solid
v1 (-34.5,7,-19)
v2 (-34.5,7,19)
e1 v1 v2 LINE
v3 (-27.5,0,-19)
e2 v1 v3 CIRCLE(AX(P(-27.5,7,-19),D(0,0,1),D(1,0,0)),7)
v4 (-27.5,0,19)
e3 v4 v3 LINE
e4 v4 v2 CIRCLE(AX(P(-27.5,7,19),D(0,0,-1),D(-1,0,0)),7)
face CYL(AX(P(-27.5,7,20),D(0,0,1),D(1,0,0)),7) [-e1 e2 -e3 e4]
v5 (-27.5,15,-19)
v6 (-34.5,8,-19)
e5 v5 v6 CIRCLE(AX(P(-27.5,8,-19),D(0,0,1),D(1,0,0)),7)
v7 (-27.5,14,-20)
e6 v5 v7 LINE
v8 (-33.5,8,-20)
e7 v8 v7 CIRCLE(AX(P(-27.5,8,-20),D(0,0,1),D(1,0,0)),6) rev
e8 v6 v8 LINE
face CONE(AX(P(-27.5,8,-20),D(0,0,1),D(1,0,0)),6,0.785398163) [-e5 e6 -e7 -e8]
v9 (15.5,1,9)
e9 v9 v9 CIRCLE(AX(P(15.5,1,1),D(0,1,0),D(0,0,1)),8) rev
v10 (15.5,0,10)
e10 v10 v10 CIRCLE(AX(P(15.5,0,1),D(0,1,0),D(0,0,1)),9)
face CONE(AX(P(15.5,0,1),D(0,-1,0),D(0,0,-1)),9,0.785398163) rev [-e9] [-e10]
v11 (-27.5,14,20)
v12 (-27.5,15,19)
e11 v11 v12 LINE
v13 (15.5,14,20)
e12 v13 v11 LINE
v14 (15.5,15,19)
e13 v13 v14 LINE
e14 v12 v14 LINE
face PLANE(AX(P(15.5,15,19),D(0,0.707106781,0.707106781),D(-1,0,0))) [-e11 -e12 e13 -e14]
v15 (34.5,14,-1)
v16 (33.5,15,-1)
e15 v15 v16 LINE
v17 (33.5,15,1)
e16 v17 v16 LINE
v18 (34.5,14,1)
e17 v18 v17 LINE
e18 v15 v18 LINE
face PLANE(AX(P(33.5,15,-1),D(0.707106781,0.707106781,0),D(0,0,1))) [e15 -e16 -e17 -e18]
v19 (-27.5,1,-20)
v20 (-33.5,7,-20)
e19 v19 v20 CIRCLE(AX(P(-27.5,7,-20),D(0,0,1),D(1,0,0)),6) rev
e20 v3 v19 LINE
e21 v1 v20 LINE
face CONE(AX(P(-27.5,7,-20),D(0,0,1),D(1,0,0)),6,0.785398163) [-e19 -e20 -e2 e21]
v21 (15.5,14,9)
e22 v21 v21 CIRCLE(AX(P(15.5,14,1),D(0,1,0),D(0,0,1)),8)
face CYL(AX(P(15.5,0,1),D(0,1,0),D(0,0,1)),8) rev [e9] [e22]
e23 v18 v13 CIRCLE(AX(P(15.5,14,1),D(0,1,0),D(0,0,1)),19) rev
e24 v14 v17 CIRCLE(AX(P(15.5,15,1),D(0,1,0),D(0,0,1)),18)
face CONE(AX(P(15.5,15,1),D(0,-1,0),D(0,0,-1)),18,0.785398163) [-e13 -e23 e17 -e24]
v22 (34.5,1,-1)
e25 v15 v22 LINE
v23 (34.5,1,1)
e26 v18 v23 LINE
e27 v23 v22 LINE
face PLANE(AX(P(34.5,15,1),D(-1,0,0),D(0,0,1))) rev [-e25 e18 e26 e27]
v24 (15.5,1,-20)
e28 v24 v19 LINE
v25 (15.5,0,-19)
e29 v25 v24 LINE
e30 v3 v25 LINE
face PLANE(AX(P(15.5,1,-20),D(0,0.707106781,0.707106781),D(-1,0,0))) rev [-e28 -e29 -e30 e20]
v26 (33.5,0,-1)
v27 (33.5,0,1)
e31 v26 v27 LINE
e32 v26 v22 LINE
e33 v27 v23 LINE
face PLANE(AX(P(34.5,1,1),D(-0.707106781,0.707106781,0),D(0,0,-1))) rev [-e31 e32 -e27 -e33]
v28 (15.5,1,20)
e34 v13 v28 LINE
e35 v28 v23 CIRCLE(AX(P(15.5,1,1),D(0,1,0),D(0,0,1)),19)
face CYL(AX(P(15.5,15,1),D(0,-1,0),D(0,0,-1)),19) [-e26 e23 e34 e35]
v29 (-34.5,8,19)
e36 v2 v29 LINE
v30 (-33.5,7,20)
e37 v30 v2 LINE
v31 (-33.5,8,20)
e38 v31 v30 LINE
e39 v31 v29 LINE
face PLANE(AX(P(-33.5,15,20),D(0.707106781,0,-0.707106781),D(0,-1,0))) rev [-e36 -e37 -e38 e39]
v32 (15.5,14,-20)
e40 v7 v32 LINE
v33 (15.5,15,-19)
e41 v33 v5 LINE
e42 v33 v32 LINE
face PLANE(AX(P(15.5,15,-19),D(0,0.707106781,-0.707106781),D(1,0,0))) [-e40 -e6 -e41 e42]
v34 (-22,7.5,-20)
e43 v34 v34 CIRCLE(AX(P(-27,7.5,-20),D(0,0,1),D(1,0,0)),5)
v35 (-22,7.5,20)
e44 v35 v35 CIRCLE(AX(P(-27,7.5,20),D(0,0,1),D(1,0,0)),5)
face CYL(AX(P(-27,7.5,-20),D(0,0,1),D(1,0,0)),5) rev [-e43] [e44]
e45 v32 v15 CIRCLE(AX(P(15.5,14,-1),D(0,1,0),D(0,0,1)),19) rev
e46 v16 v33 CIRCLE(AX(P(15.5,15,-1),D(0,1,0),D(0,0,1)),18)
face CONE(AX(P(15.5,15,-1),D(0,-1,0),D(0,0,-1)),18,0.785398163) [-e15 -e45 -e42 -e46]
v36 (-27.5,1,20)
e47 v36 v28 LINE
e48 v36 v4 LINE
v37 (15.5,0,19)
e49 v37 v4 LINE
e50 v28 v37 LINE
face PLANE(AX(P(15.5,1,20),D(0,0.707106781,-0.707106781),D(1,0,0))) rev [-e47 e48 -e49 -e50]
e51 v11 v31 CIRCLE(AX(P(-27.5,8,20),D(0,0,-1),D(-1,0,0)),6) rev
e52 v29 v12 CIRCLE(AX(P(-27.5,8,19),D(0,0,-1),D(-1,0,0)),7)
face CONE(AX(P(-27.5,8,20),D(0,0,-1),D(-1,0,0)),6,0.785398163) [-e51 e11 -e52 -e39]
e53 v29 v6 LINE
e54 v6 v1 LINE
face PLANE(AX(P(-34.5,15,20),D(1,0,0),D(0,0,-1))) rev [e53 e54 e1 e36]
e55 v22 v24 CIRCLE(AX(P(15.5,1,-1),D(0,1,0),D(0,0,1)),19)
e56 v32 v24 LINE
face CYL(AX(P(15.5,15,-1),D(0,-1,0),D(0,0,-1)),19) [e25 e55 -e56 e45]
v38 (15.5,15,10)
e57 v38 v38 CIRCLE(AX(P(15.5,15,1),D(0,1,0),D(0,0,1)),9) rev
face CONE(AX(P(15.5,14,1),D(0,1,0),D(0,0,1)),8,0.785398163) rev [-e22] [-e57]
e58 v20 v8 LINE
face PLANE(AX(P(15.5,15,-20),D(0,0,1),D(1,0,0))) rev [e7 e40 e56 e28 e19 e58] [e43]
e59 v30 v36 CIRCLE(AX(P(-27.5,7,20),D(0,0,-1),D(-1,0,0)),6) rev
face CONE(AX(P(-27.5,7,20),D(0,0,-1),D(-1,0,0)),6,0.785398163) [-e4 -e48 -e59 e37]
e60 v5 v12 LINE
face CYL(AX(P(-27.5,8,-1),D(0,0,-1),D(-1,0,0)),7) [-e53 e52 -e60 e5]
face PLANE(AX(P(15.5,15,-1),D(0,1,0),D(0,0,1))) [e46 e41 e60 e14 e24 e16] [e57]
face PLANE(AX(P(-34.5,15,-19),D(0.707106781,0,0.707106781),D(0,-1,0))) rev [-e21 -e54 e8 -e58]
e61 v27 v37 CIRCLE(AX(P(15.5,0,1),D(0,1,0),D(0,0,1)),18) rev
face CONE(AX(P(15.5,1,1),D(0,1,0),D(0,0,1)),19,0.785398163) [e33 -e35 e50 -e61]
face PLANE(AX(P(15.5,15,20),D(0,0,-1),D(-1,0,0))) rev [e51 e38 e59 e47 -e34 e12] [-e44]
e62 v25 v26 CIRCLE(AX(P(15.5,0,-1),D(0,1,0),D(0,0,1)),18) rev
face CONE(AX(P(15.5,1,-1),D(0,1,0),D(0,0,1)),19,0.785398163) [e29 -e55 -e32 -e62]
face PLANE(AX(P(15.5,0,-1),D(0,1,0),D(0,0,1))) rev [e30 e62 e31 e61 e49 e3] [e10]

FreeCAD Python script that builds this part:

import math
import FreeCAD as App
import Part
import Sketcher
from FreeCAD import Vector


def edges_at(feature, points):
    """Names of the edges that pass closest to the given points."""
    edges = feature.Shape.Edges
    near = lambda p: min(range(len(edges)), key=lambda i: edges[i].distToShape(Part.Vertex(*p))[0])
    return sorted({f"Edge{near(p) + 1}" for p in points})

doc = App.newDocument("Part")
body = doc.addObject("PartDesign::Body", "Body")

# Sketch on XZ plane
sketch1 = doc.addObject("Sketcher::SketchObject", "Sketch")
body.addObject(sketch1)
sketch1.AttachmentSupport = (doc.XZ_Plane, [""])
sketch1.MapMode = "FlatFace"
sketch1.addGeometry(Part.LineSegment(Vector(-34.5, 20, 0), Vector(15.5, 20, 0)), False)
sketch1.addGeometry(Part.ArcOfCircle(Part.Circle(Vector(15.5, 1, 0), Vector(0, 0, 1), 19), math.radians(0), math.radians(90)), False)
sketch1.addGeometry(Part.LineSegment(Vector(34.5, 1, 0), Vector(34.5, -1, 0)), False)
sketch1.addGeometry(Part.ArcOfCircle(Part.Circle(Vector(15.5, -1, 0), Vector(0, 0, 1), 19), math.radians(-90), math.radians(0)), False)
sketch1.addGeometry(Part.LineSegment(Vector(15.5, -20, 0), Vector(-34.5, -20, 0)), False)
sketch1.addGeometry(Part.LineSegment(Vector(-34.5, -20, 0), Vector(-34.5, 20, 0)), False)
sketch1.addConstraint(Sketcher.Constraint("Tangent", 0, 2, 1, 2))
sketch1.addConstraint(Sketcher.Constraint("Tangent", 1, 1, 2, 1))
sketch1.addConstraint(Sketcher.Constraint("Tangent", 2, 2, 3, 2))
sketch1.addConstraint(Sketcher.Constraint("Tangent", 3, 1, 4, 1))
sketch1.addConstraint(Sketcher.Constraint("Coincident", 4, 2, 5, 1))
sketch1.addConstraint(Sketcher.Constraint("Coincident", 5, 2, 0, 1))
sketch1.addConstraint(Sketcher.Constraint("Horizontal", 0))
sketch1.addConstraint(Sketcher.Constraint("Vertical", 2))
sketch1.addConstraint(Sketcher.Constraint("Horizontal", 4))
sketch1.addConstraint(Sketcher.Constraint("Vertical", 5))
sketch1.addConstraint(Sketcher.Constraint("Equal", 1, 3))
sketch1.addConstraint(Sketcher.Constraint("Radius", 1, 19.0))
sketch1.addConstraint(Sketcher.Constraint("DistanceX", 0, 1, 0, 2, 50.0))
sketch1.addConstraint(Sketcher.Constraint("DistanceY", 2, 2, 2, 1, 2.0))
sketch1.addConstraint(Sketcher.Constraint("DistanceY", -1, 1, 1, 3, 1.0))
sketch1.addConstraint(Sketcher.Constraint("DistanceX", -1, 1, 1, 3, 15.5))
pad1 = doc.addObject("PartDesign::Pad", "Pad")
body.addObject(pad1)
pad1.Profile = sketch1
pad1.Length = 15
pad1.Reversed = True

# Sketch on XY plane
sketch2 = doc.addObject("Sketcher::SketchObject", "Sketch001")
body.addObject(sketch2)
sketch2.AttachmentSupport = (doc.XY_Plane, [""])
sketch2.MapMode = "FlatFace"
sketch2.AttachmentOffset = App.Placement(Vector(0, 0, 20), App.Rotation())
sketch2.addGeometry(Part.Circle(Vector(-27, 7.5, 0), Vector(0, 0, 1), 5), False)
sketch2.addConstraint(Sketcher.Constraint("Diameter", 0, 10.0))
sketch2.addConstraint(Sketcher.Constraint("DistanceX", 0, 3, -1, 1, 27.0))
sketch2.addConstraint(Sketcher.Constraint("DistanceY", -1, 1, 0, 3, 7.5))
pocket1 = doc.addObject("PartDesign::Pocket", "Pocket")
body.addObject(pocket1)
pocket1.Profile = sketch2
pocket1.Type = "ThroughAll"
doc.recompute()

fillet = doc.addObject("PartDesign::Fillet", "Fillet")
body.addObject(fillet)
fillet.Base = (pocket1, edges_at(pocket1, [(-34.5, 15, 0), (-34.5, 0, 0)]))
fillet.Radius = 7

# Sketch on XZ plane
sketch3 = doc.addObject("Sketcher::SketchObject", "Sketch002")
body.addObject(sketch3)
sketch3.AttachmentSupport = (doc.XZ_Plane, [""])
sketch3.MapMode = "FlatFace"
sketch3.AttachmentOffset = App.Placement(Vector(0, 0, -15), App.Rotation())
sketch3.addGeometry(Part.Circle(Vector(15.5, 1, 0), Vector(0, 0, 1), 8), False)
sketch3.addConstraint(Sketcher.Constraint("Diameter", 0, 16.0))
sketch3.addConstraint(Sketcher.Constraint("DistanceY", -1, 1, 0, 3, 1.0))
sketch3.addConstraint(Sketcher.Constraint("DistanceX", -1, 1, 0, 3, 15.5))
pocket2 = doc.addObject("PartDesign::Pocket", "Pocket001")
body.addObject(pocket2)
pocket2.Profile = sketch3
pocket2.Type = "ThroughAll"
pocket2.Reversed = True
doc.recompute()

chamfer = doc.addObject("PartDesign::Chamfer", "Chamfer")
body.addObject(chamfer)
chamfer.Base = (pocket2, edges_at(pocket2, [
    (28.935, 15, 14.435),
    (34.5, 15, 0),
    (28.935, 15, -14.435),
    (-6, 15, -20),
    (-34.5, 7.5, 20),
    (-34.5, 7.5, -20),
    (-6, 0, 20),
    (-6, 15, 20),
    (-32.45, 12.95, 20),
    (-32.45, 2.05, 20),
    (-32.45, 12.95, -20),
    (-32.45, 2.05, -20),
    (7.5, 0, 1),
    (7.5, 15, 1),
    (-6, 0, -20),
    (28.935, 0, -14.435),
    (34.5, 0, 0),
    (28.935, 0, 14.435),
]))
chamfer.Size = 1

doc.recompute()
